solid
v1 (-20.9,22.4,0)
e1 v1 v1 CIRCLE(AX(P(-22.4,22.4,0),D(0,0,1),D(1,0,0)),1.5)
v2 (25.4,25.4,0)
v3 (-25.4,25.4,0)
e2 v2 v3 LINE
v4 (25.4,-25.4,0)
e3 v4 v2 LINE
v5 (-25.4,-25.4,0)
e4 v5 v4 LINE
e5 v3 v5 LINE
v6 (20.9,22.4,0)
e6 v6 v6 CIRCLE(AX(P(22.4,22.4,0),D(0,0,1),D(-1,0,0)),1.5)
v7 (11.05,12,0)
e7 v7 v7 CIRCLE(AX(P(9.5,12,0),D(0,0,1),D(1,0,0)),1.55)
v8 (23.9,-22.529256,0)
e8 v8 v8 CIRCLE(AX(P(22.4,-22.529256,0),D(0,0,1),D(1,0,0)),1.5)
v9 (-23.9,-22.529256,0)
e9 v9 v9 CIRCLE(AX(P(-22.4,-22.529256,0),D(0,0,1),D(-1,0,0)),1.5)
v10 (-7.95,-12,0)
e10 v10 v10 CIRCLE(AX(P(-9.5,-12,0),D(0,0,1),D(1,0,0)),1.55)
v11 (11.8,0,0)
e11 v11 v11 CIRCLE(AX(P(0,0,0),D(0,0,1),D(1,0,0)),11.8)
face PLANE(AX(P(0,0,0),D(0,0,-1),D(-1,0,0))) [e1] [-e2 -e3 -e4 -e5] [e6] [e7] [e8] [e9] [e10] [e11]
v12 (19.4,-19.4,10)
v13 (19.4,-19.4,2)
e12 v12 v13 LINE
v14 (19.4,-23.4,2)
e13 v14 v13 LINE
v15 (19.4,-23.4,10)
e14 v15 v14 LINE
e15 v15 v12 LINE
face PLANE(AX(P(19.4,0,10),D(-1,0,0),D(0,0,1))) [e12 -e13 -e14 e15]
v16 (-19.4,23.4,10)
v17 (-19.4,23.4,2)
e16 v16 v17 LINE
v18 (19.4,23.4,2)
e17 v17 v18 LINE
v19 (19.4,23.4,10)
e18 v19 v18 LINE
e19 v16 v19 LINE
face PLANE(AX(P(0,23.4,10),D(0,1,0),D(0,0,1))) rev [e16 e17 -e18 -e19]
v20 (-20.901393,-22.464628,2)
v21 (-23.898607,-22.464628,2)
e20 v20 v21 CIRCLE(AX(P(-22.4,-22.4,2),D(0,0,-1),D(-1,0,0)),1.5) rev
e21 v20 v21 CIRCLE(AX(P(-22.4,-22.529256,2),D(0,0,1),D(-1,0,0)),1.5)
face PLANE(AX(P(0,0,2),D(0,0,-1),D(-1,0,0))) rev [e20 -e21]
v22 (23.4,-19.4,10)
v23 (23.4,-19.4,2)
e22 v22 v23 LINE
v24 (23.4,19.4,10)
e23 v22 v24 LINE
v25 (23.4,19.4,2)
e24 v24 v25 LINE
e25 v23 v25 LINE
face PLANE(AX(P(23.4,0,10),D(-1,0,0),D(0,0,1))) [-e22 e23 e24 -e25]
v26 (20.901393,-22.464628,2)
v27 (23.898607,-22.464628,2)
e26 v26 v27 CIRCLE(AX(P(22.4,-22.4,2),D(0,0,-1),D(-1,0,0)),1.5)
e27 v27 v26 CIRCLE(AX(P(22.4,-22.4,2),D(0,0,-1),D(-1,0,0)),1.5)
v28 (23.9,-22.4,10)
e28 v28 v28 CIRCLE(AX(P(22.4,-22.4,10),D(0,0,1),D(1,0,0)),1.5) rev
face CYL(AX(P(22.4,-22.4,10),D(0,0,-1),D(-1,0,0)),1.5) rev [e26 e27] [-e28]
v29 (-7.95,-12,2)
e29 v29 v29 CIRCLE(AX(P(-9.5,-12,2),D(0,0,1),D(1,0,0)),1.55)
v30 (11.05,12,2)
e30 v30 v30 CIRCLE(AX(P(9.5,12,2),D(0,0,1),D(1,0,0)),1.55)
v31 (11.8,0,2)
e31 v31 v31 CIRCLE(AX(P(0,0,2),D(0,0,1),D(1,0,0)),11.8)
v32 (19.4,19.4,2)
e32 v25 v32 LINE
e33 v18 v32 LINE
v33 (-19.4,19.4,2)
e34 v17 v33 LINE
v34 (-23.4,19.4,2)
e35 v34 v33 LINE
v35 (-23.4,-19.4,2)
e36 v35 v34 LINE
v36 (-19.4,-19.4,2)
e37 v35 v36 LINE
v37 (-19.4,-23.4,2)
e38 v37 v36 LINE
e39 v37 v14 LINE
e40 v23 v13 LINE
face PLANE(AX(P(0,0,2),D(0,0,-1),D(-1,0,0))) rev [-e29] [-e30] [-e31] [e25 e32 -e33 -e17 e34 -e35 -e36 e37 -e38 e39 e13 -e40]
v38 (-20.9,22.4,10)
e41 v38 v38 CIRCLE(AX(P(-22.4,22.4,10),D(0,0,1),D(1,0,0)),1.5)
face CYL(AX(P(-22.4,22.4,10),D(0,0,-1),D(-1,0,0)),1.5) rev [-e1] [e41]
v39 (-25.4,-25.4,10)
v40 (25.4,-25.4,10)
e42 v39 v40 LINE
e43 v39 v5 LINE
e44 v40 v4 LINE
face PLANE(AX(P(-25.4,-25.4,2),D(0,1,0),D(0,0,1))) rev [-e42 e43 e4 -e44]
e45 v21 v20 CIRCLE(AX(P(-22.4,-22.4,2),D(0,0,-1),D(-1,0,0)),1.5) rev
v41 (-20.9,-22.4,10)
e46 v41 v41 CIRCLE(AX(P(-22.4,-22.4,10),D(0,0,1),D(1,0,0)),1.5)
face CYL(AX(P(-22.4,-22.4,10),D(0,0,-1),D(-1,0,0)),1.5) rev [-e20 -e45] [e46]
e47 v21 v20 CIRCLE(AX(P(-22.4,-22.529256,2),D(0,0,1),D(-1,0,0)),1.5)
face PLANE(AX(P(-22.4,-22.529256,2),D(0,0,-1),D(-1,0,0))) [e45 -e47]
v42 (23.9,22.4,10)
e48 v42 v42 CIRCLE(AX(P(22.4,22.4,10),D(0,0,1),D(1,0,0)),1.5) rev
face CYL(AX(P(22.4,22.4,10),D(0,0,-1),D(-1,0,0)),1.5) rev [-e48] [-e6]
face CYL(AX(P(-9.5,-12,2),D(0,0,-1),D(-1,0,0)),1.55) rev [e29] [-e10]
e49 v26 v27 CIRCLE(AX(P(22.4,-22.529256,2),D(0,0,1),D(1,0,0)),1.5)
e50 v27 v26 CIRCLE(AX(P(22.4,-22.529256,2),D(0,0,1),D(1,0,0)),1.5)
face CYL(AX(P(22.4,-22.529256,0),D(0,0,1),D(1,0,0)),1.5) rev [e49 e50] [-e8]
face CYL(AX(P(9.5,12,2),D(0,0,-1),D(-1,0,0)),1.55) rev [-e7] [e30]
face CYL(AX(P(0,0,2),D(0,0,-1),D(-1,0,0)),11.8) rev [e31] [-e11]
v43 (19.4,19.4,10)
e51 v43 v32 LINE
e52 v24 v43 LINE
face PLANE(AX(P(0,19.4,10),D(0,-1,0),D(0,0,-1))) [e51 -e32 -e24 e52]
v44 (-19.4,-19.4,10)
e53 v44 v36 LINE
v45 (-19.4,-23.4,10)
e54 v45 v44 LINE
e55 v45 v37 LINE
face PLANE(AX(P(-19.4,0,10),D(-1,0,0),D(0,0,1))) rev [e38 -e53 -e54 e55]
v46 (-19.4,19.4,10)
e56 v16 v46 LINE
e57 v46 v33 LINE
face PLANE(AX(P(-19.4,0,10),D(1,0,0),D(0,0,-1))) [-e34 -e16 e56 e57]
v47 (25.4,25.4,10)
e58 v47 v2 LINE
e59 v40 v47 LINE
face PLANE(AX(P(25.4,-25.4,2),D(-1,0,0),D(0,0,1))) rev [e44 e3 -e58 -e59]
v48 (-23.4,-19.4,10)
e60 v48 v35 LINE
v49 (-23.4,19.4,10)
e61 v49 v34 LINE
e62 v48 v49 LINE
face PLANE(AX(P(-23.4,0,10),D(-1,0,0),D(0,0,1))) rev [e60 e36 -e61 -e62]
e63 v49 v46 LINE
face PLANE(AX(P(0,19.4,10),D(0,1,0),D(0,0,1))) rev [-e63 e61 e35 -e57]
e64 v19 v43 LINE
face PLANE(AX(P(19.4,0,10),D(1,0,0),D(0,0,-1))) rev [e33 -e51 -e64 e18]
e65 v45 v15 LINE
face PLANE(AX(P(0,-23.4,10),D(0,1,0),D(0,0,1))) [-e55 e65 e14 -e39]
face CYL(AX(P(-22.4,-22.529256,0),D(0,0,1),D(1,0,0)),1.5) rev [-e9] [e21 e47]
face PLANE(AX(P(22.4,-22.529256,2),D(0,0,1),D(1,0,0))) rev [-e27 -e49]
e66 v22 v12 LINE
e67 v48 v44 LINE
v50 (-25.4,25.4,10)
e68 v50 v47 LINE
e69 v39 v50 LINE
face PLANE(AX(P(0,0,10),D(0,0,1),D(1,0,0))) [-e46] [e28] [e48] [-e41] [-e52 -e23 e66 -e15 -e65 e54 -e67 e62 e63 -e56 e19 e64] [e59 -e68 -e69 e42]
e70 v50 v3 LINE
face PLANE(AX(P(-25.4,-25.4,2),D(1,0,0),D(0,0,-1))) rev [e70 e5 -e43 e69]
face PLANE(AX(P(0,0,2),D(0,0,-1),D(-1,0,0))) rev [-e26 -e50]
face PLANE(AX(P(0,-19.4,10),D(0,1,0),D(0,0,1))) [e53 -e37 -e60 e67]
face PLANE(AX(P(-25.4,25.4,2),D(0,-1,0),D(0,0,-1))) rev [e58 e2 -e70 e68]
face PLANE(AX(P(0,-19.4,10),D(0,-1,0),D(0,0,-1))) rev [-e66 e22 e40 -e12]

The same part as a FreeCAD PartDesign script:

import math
import FreeCAD as App
import Part
import Sketcher

V = App.Vector


def add_polygon(sketch, points):
    """Adds a closed chain of lines whose ends are joined by coincident constraints."""
    first, n = sketch.GeometryCount, len(points)
    for a, b in zip(points, points[1:] + points[:1]):
        sketch.addGeometry(Part.LineSegment(App.Vector(*a, 0), App.Vector(*b, 0)), False)
    for i in range(n):
        sketch.addConstraint(Sketcher.Constraint("Coincident", first + i, 2, first + (i + 1) % n, 1))

doc = App.newDocument("Part")
body = doc.addObject("PartDesign::Body", "Body")

# Sketch on XY plane
sketch1 = body.newObject("Sketcher::SketchObject", "Sketch")
sketch1.AttachmentSupport = (doc.getObject("XY_Plane"), [""])
sketch1.MapMode = "FlatFace"
add_polygon(sketch1, [(-25.4, 25.4), (-25.4, -25.4), (25.4, -25.4), (25.4, 25.4)])  # lines 0-3
sketch1.addGeometry(Part.Circle(V(-9.5, -12, 0), V(0, 0, 1), 1.6), False)  # 4
sketch1.addGeometry(Part.Circle(V(0, 0, 0), V(0, 0, 1), 11.8), False)  # 5
sketch1.addGeometry(Part.Circle(V(9.5, 12, 0), V(0, 0, 1), 1.6), False)  # 6
sketch1.addConstraint([
    Sketcher.Constraint("Vertical", 0),
    Sketcher.Constraint("Horizontal", 1),
    Sketcher.Constraint("Vertical", 2),
    Sketcher.Constraint("Horizontal", 3),
    Sketcher.Constraint("Coincident", 5, 3, -1, 1),
    Sketcher.Constraint("Equal", 4, 6),
    Sketcher.Constraint("Symmetric", 4, 3, 6, 3, -1, 1),
    Sketcher.Constraint("Symmetric", 0, 2, 2, 2, -1, 1),
    Sketcher.Constraint("Equal", 3, 0),
    Sketcher.Constraint("Diameter", 4, 3.1),
    Sketcher.Constraint("Diameter", 5, 23.6),
    Sketcher.Constraint("DistanceX", 1, 1, 1, 2, 50.8),
    Sketcher.Constraint("DistanceY", 4, 3, -1, 1, 12.0),
    Sketcher.Constraint("DistanceX", 4, 3, 6, 3, 19.0),
])
pad1 = body.newObject("PartDesign::Pad", "Pad")
pad1.Profile = sketch1
pad1.Length = 2

# Sketch on XY plane
sketch2 = body.newObject("Sketcher::SketchObject", "Sketch001")
sketch2.AttachmentSupport = (doc.getObject("XY_Plane"), [""])
sketch2.MapMode = "FlatFace"
add_polygon(sketch2, [(-25.4, 25.4), (-25.4, -25.4), (25.4, -25.4), (25.4, 25.4)])  # lines 0-3
add_polygon(sketch2, [(23.4, -19.4), (19.4, -19.4), (19.4, -23.4), (-19.4, -23.4), (-19.4, -19.4), (-23.4, -19.4), (-23.4, 19.4), (-19.4, 19.4), (-19.4, 23.4), (19.4, 23.4), (19.4, 19.4), (23.4, 19.4)])  # lines 4-15
sketch2.addGeometry(Part.ArcOfCircle(Part.Circle(V(22.4, 22.4, 0), V(0, 0, 1), 1.5), math.radians(0), math.radians(138)), False)  # 16
sketch2.addGeometry(Part.ArcOfCircle(Part.Circle(V(22.4, 22.4, 0), V(0, 0, 1), 1.5), math.radians(-48), math.radians(0)), False)  # 17
sketch2.addGeometry(Part.ArcOfCircle(Part.Circle(V(22.4, 22.4, 0), V(0, 0, 1), 1.5), math.radians(138), math.radians(312)), False)  # 18
sketch2.addGeometry(Part.ArcOfCircle(Part.Circle(V(-22.4, 22.4, 0), V(0, 0, 1), 1.5), math.radians(42), math.radians(228)), False)  # 19
sketch2.addGeometry(Part.ArcOfCircle(Part.Circle(V(-22.4, 22.4, 0), V(0, 0, 1), 1.5), math.radians(0), math.radians(42)), False)  # 20
sketch2.addGeometry(Part.ArcOfCircle(Part.Circle(V(-22.4, 22.4, 0), V(0, 0, 1), 1.5), math.radians(-132), math.radians(0)), False)  # 21
sketch2.addGeometry(Part.ArcOfCircle(Part.Circle(V(22.4, -22.4, 0), V(0, 0, 1), 1.5), math.radians(0), math.radians(48)), False)  # 22
sketch2.addGeometry(Part.ArcOfCircle(Part.Circle(V(22.4, -22.4, 0), V(0, 0, 1), 1.5), math.radians(-138), math.radians(0)), False)  # 23
sketch2.addGeometry(Part.ArcOfCircle(Part.Circle(V(22.4, -22.4, 0), V(0, 0, 1), 1.5), math.radians(48), math.radians(222)), False)  # 24
sketch2.addGeometry(Part.ArcOfCircle(Part.Circle(V(-22.4, -22.4, 0), V(0, 0, 1), 1.5), math.radians(132), math.radians(318)), False)  # 25
sketch2.addGeometry(Part.ArcOfCircle(Part.Circle(V(-22.4, -22.4, 0), V(0, 0, 1), 1.5), math.radians(0), math.radians(132)), False)  # 26
sketch2.addGeometry(Part.ArcOfCircle(Part.Circle(V(-22.4, -22.4, 0), V(0, 0, 1), 1.5), math.radians(-42), math.radians(0)), False)  # 27
sketch2.addConstraint([
    Sketcher.Constraint("Tangent", 16, 1, 17, 2),
    Sketcher.Constraint("Tangent", 17, 1, 18, 2),
    Sketcher.Constraint("Tangent", 18, 1, 16, 2),
    Sketcher.Constraint("Tangent", 19, 1, 20, 2),
    Sketcher.Constraint("Tangent", 20, 1, 21, 2),
    Sketcher.Constraint("Tangent", 21, 1, 19, 2),
    Sketcher.Constraint("Tangent", 22, 1, 23, 2),
    Sketcher.Constraint("Tangent", 23, 1, 24, 2),
    Sketcher.Constraint("Tangent", 24, 1, 22, 2),
    Sketcher.Constraint("Tangent", 25, 1, 26, 2),
    Sketcher.Constraint("Tangent", 26, 1, 27, 2),
    Sketcher.Constraint("Tangent", 27, 1, 25, 2),
    Sketcher.Constraint("Vertical", 0),
    Sketcher.Constraint("Horizontal", 1),
    Sketcher.Constraint("Vertical", 2),
    Sketcher.Constraint("Horizontal", 3),
    Sketcher.Constraint("Horizontal", 4),
    Sketcher.Constraint("Vertical", 5),
    Sketcher.Constraint("Horizontal", 6),
    Sketcher.Constraint("Vertical", 7),
    Sketcher.Constraint("Horizontal", 8),
    Sketcher.Constraint("Vertical", 9),
    Sketcher.Constraint("Horizontal", 10),
    Sketcher.Constraint("Vertical", 11),
    Sketcher.Constraint("Horizontal", 12),
    Sketcher.Constraint("Vertical", 13),
    Sketcher.Constraint("Horizontal", 14),
    Sketcher.Constraint("Vertical", 15),
    Sketcher.Constraint("Equal", 18, 19),
    Sketcher.Constraint("Equal", 21, 22),
    Sketcher.Constraint("Equal", 24, 25),
    Sketcher.Constraint("Symmetric", 19, 3, 22, 3, -1, 1),
    Sketcher.Constraint("Symmetric", 16, 3, 25, 3, -1, 1),
    Sketcher.Constraint("Symmetric", 0, 2, 2, 2, -1, 1),
    Sketcher.Constraint("Symmetric", 4, 2, 10, 2, -1, 1),
    Sketcher.Constraint("Symmetric", 6, 2, 12, 2, -1, 1),
    Sketcher.Constraint("Symmetric", 8, 2, 14, 2, -1, 1),
    Sketcher.Constraint("Symmetric", 16, 3, 19, 3, -2),
    Sketcher.Constraint("Symmetric", 4, 2, 7, 2, -2),
    Sketcher.Constraint("Horizontal", 21, 3, 16, 1),
    Sketcher.Constraint("Horizontal", 12, 2, 18, 1),
    Sketcher.Constraint("Horizontal", 18, 1, 19, 1),
    Sketcher.Constraint("Horizontal", 16, 1, 20, 1),
    Sketcher.Constraint("Horizontal", 17, 1, 21, 1),
    Sketcher.Constraint("Horizontal", 27, 3, 22, 1),
    Sketcher.Constraint("Horizontal", 6, 2, 23, 1),
    Sketcher.Constraint("Horizontal", 24, 1, 25, 1),
    Sketcher.Constraint("Horizontal", 22, 1, 26, 1),
    Sketcher.Constraint("Horizontal", 23, 1, 27, 1),
    Sketcher.Constraint("Vertical", 15, 2, 17, 1),
    Sketcher.Constraint("Vertical", 17, 1, 24, 1),
    Sketcher.Constraint("Equal", 3, 0),
    Sketcher.Constraint("Equal", 14, 5),
    Sketcher.Constraint("Equal", 12, 9),
    Sketcher.Constraint("Radius", 16, 1.5),
    Sketcher.Constraint("DistanceX", 4, 2, 4, 1, 4.0),
    Sketcher.Constraint("DistanceX", 1, 1, 1, 2, 50.8),
    Sketcher.Constraint("DistanceX", 6, 2, 6, 1, 38.8),
    Sketcher.Constraint("DistanceX", 0, 2, 27, 3, 3.0),
    Sketcher.Constraint("DistanceY", 0, 2, 27, 3, 3.0),
])
pad2 = body.newObject("PartDesign::Pad", "Pad001")
pad2.Profile = sketch2
pad2.Length = 10

# Sketch on XY plane
sketch3 = body.newObject("Sketcher::SketchObject", "Sketch002")
sketch3.AttachmentSupport = (doc.getObject("XY_Plane"), [""])
sketch3.MapMode = "FlatFace"
sketch3.AttachmentOffset = App.Placement(V(0, 0, 2), App.Rotation())
sketch3.addGeometry([
    Part.Circle(V(-22.4, 22.4, 0), V(0, 0, 1), 1.5),
    Part.Circle(V(22.4, 22.4, 0), V(0, 0, 1), 1.5),
    Part.Circle(V(22.4, -22.5, 0), V(0, 0, 1), 1.5),
    Part.Circle(V(-22.4, -22.5, 0), V(0, 0, 1), 1.5),
], False)
sketch3.addConstraint([
    Sketcher.Constraint("Equal", 0, 1),
    Sketcher.Constraint("Equal", 1, 2),
    Sketcher.Constraint("Equal", 2, 3),
    Sketcher.Constraint("Symmetric", 0, 3, 1, 3, -2),
    Sketcher.Constraint("Symmetric", 2, 3, 3, 3, -2),
    Sketcher.Constraint("Vertical", 1, 3, 2, 3),
    Sketcher.Constraint("Diameter", 0, 3.0),
    Sketcher.Constraint("DistanceX", 0, 3, -1, 1, 22.4),
    Sketcher.Constraint("DistanceY", -1, 1, 0, 3, 22.4),
    Sketcher.Constraint("DistanceY", 2, 3, -1, 1, 22.529256),
])
pocket1 = body.newObject("PartDesign::Pocket", "Pocket")
pocket1.Profile = sketch3
pocket1.Type = "ThroughAll"

doc.recompute()
